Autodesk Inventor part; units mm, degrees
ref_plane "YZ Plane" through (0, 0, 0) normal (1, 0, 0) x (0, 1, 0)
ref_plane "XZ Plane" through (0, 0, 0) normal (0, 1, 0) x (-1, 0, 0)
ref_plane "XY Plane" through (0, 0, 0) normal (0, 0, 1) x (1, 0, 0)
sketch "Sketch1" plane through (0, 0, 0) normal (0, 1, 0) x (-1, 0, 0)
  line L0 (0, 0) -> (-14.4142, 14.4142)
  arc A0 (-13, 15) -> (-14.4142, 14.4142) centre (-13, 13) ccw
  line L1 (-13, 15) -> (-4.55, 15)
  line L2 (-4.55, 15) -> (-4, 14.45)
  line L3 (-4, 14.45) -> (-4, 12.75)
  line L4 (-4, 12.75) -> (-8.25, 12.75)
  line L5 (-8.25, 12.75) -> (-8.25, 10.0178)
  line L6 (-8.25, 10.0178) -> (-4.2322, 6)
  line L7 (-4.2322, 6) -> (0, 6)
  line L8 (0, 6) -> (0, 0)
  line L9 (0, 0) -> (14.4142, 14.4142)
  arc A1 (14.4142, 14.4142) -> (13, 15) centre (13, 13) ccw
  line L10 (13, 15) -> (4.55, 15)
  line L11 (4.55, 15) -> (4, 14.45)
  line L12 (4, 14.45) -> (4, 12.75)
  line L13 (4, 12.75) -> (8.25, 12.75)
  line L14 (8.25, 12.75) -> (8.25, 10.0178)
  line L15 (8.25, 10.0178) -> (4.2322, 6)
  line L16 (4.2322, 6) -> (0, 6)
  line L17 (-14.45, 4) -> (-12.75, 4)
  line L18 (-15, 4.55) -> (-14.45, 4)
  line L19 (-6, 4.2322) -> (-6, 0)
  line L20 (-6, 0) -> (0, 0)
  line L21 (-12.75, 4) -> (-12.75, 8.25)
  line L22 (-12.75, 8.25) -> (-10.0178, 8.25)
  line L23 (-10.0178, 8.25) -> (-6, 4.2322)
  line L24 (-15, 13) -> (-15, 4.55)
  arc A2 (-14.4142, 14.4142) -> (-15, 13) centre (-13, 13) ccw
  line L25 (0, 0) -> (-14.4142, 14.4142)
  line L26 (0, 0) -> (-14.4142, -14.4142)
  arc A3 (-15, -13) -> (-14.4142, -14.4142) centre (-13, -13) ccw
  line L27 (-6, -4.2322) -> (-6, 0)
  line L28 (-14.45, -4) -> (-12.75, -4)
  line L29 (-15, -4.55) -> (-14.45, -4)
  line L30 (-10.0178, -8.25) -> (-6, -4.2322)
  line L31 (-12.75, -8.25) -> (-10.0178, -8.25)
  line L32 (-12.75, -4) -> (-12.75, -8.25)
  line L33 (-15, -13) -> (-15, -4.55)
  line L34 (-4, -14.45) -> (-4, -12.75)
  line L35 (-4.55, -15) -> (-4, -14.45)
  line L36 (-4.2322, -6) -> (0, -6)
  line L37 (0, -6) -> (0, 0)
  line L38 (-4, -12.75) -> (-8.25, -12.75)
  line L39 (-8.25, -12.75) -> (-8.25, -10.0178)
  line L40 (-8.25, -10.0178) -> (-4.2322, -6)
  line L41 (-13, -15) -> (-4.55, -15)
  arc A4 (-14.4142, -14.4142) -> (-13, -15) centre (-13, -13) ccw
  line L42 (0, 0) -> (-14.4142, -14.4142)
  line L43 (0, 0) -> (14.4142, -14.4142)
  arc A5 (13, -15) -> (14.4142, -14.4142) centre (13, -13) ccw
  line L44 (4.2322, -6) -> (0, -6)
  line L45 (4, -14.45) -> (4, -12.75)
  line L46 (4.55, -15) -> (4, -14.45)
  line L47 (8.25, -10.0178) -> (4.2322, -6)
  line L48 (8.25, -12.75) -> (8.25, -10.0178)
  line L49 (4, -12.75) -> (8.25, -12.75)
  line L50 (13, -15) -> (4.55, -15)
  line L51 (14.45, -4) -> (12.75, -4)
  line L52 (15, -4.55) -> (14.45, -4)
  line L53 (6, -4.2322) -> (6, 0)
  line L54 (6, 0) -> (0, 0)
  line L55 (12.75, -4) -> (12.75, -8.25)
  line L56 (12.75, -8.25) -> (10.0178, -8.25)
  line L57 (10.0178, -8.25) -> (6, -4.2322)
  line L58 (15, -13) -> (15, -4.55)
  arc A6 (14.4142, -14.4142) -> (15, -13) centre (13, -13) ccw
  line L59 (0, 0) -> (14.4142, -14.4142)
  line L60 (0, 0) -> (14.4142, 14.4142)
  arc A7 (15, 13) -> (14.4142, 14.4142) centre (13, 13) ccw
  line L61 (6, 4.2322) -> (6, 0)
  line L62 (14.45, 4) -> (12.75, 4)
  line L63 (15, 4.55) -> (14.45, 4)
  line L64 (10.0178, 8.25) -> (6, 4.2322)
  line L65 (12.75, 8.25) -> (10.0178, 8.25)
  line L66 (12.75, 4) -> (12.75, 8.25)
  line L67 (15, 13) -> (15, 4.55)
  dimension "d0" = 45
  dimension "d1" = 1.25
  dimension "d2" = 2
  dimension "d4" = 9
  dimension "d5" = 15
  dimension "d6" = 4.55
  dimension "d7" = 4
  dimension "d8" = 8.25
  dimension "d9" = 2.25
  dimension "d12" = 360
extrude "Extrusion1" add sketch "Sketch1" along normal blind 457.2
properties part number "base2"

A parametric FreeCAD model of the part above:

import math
import FreeCAD as App
import Part
import Sketcher

V = App.Vector

doc = App.newDocument("Part")
params = doc.addObject("Spreadsheet::Sheet", "Params")
for row, (alias, value) in enumerate([
    ("sketch1_radius", "2 mm"),
    ("sketch1_width", "1.7 mm"),
    ("pad1_length", "457.2 mm"),
], start=1):
    params.set(f"A{row}", alias)
    params.set(f"B{row}", "=" + value)
    params.setAlias(f"B{row}", alias)

body = doc.addObject("PartDesign::Body", "Body")

# Sketch on XZ plane
sketch1 = body.newObject("Sketcher::SketchObject", "Sketch")
sketch1.AttachmentSupport = (doc.getObject("XZ_Plane"), [""])
sketch1.MapMode = "FlatFace"
sketch1.addGeometry([
    Part.LineSegment(V(6, 4.2, 0), V(6, -4.2, 0)),  # 0
    Part.LineSegment(V(6, -4.2, 0), V(10, -8.2, 0)),  # 1
    Part.LineSegment(V(10, -8.2, 0), V(12.8, -8.2, 0)),  # 2
    Part.LineSegment(V(12.8, -8.2, 0), V(12.8, -4, 0)),  # 3
    Part.LineSegment(V(12.8, -4, 0), V(14.4, -4, 0)),  # 4
    Part.LineSegment(V(14.4, -4, 0), V(15, -4.5, 0)),  # 5
    Part.LineSegment(V(15, -4.5, 0), V(15, -13, 0)),  # 6
    Part.ArcOfCircle(Part.Circle(V(13, -13, 0), V(0, 0, 1), 2), math.radians(-45), math.radians(0)),  # 7
    Part.ArcOfCircle(Part.Circle(V(13, -13, 0), V(0, 0, 1), 2), math.radians(-90), math.radians(-45)),  # 8
    Part.LineSegment(V(13, -15, 0), V(4.5, -15, 0)),  # 9
    Part.LineSegment(V(4.5, -15, 0), V(4, -14.4, 0)),  # 10
    Part.LineSegment(V(4, -14.4, 0), V(4, -12.8, 0)),  # 11
    Part.LineSegment(V(4, -12.8, 0), V(8.2, -12.8, 0)),  # 12
    Part.LineSegment(V(8.2, -12.8, 0), V(8.2, -10, 0)),  # 13
    Part.LineSegment(V(8.2, -10, 0), V(4.2, -6, 0)),  # 14
    Part.LineSegment(V(4.2, -6, 0), V(-4.2, -6, 0)),  # 15
    Part.LineSegment(V(-4.2, -6, 0), V(-8.2, -10, 0)),  # 16
    Part.LineSegment(V(-8.2, -10, 0), V(-8.2, -12.8, 0)),  # 17
    Part.LineSegment(V(-8.2, -12.8, 0), V(-4, -12.8, 0)),  # 18
    Part.LineSegment(V(-4, -12.8, 0), V(-4, -14.4, 0)),  # 19
    Part.LineSegment(V(-4, -14.4, 0), V(-4.5, -15, 0)),  # 20
    Part.LineSegment(V(-4.5, -15, 0), V(-13, -15, 0)),  # 21
    Part.ArcOfCircle(Part.Circle(V(-13, -13, 0), V(0, 0, 1), 2), math.radians(-135), math.radians(-90)),  # 22
    Part.ArcOfCircle(Part.Circle(V(-13, -13, 0), V(0, 0, 1), 2), math.radians(180), math.radians(225)),  # 23
    Part.LineSegment(V(-15, -13, 0), V(-15, -4.5, 0)),  # 24
    Part.LineSegment(V(-15, -4.5, 0), V(-14.4, -4, 0)),  # 25
    Part.LineSegment(V(-14.4, -4, 0), V(-12.8, -4, 0)),  # 26
    Part.LineSegment(V(-12.8, -4, 0), V(-12.8, -8.2, 0)),  # 27
    Part.LineSegment(V(-12.8, -8.2, 0), V(-10, -8.2, 0)),  # 28
    Part.LineSegment(V(-10, -8.2, 0), V(-6, -4.2, 0)),  # 29
    Part.LineSegment(V(-6, -4.2, 0), V(-6, 4.2, 0)),  # 30
    Part.LineSegment(V(-6, 4.2, 0), V(-10, 8.2, 0)),  # 31
    Part.LineSegment(V(-10, 8.2, 0), V(-12.8, 8.2, 0)),  # 32
    Part.LineSegment(V(-12.8, 8.2, 0), V(-12.8, 4, 0)),  # 33
    Part.LineSegment(V(-12.8, 4, 0), V(-14.4, 4, 0)),  # 34
    Part.LineSegment(V(-14.4, 4, 0), V(-15, 4.5, 0)),  # 35
    Part.LineSegment(V(-15, 4.5, 0), V(-15, 13, 0)),  # 36
    Part.ArcOfCircle(Part.Circle(V(-13, 13, 0), V(0, 0, 1), 2), math.radians(135), math.radians(180)),  # 37
    Part.ArcOfCircle(Part.Circle(V(-13, 13, 0), V(0, 0, 1), 2), math.radians(90), math.radians(135)),  # 38
    Part.LineSegment(V(-13, 15, 0), V(-4.5, 15, 0)),  # 39
    Part.LineSegment(V(-4.5, 15, 0), V(-4, 14.4, 0)),  # 40
    Part.LineSegment(V(-4, 14.4, 0), V(-4, 12.8, 0)),  # 41
    Part.LineSegment(V(-4, 12.8, 0), V(-8.2, 12.8, 0)),  # 42
    Part.LineSegment(V(-8.2, 12.8, 0), V(-8.2, 10, 0)),  # 43
    Part.LineSegment(V(-8.2, 10, 0), V(-4.2, 6, 0)),  # 44
    Part.LineSegment(V(-4.2, 6, 0), V(4.2, 6, 0)),  # 45
    Part.LineSegment(V(4.2, 6, 0), V(8.2, 10, 0)),  # 46
    Part.LineSegment(V(8.2, 10, 0), V(8.2, 12.8, 0)),  # 47
    Part.LineSegment(V(8.2, 12.8, 0), V(4, 12.8, 0)),  # 48
    Part.LineSegment(V(4, 12.8, 0), V(4, 14.4, 0)),  # 49
    Part.LineSegment(V(4, 14.4, 0), V(4.5, 15, 0)),  # 50
    Part.LineSegment(V(4.5, 15, 0), V(13, 15, 0)),  # 51
    Part.ArcOfCircle(Part.Circle(V(13, 13, 0), V(0, 0, 1), 2), math.radians(45), math.radians(90)),  # 52
    Part.ArcOfCircle(Part.Circle(V(13, 13, 0), V(0, 0, 1), 2), math.radians(0), math.radians(45)),  # 53
    Part.LineSegment(V(15, 13, 0), V(15, 4.5, 0)),  # 54
    Part.LineSegment(V(15, 4.5, 0), V(14.4, 4, 0)),  # 55
    Part.LineSegment(V(14.4, 4, 0), V(12.8, 4, 0)),  # 56
    Part.LineSegment(V(12.8, 4, 0), V(12.8, 8.2, 0)),  # 57
    Part.LineSegment(V(12.8, 8.2, 0), V(10, 8.2, 0)),  # 58
    Part.LineSegment(V(10, 8.2, 0), V(6, 4.2, 0)),  # 59
], False)
sketch1.addConstraint([
    Sketcher.Constraint("Coincident", 0, 2, 1, 1),
    Sketcher.Constraint("Coincident", 1, 2, 2, 1),
    Sketcher.Constraint("Coincident", 2, 2, 3, 1),
    Sketcher.Constraint("Coincident", 3, 2, 4, 1),
    Sketcher.Constraint("Coincident", 4, 2, 5, 1),
    Sketcher.Constraint("Coincident", 5, 2, 6, 1),
    Sketcher.Constraint("Tangent", 6, 2, 7, 2),
    Sketcher.Constraint("Tangent", 7, 1, 8, 2),
    Sketcher.Constraint("Tangent", 8, 1, 9, 1),
    Sketcher.Constraint("Coincident", 9, 2, 10, 1),
    Sketcher.Constraint("Coincident", 10, 2, 11, 1),
    Sketcher.Constraint("Coincident", 11, 2, 12, 1),
    Sketcher.Constraint("Coincident", 12, 2, 13, 1),
    Sketcher.Constraint("Coincident", 13, 2, 14, 1),
    Sketcher.Constraint("Coincident", 14, 2, 15, 1),
    Sketcher.Constraint("Coincident", 15, 2, 16, 1),
    Sketcher.Constraint("Coincident", 16, 2, 17, 1),
    Sketcher.Constraint("Coincident", 17, 2, 18, 1),
    Sketcher.Constraint("Coincident", 18, 2, 19, 1),
    Sketcher.Constraint("Coincident", 19, 2, 20, 1),
    Sketcher.Constraint("Coincident", 20, 2, 21, 1),
    Sketcher.Constraint("Tangent", 21, 2, 22, 2),
    Sketcher.Constraint("Tangent", 22, 1, 23, 2),
    Sketcher.Constraint("Tangent", 23, 1, 24, 1),
    Sketcher.Constraint("Coincident", 24, 2, 25, 1),
    Sketcher.Constraint("Coincident", 25, 2, 26, 1),
    Sketcher.Constraint("Coincident", 26, 2, 27, 1),
    Sketcher.Constraint("Coincident", 27, 2, 28, 1),
    Sketcher.Constraint("Coincident", 28, 2, 29, 1),
    Sketcher.Constraint("Coincident", 29, 2, 30, 1),
    Sketcher.Constraint("Coincident", 30, 2, 31, 1),
    Sketcher.Constraint("Coincident", 31, 2, 32, 1),
    Sketcher.Constraint("Coincident", 32, 2, 33, 1),
    Sketcher.Constraint("Coincident", 33, 2, 34, 1),
    Sketcher.Constraint("Coincident", 34, 2, 35, 1),
    Sketcher.Constraint("Coincident", 35, 2, 36, 1),
    Sketcher.Constraint("Tangent", 36, 2, 37, 2),
    Sketcher.Constraint("Tangent", 37, 1, 38, 2),
    Sketcher.Constraint("Tangent", 38, 1, 39, 1),
    Sketcher.Constraint("Coincident", 39, 2, 40, 1),
    Sketcher.Constraint("Coincident", 40, 2, 41, 1),
    Sketcher.Constraint("Coincident", 41, 2, 42, 1),
    Sketcher.Constraint("Coincident", 42, 2, 43, 1),
    Sketcher.Constraint("Coincident", 43, 2, 44, 1),
    Sketcher.Constraint("Coincident", 44, 2, 45, 1),
    Sketcher.Constraint("Coincident", 45, 2, 46, 1),
    Sketcher.Constraint("Coincident", 46, 2, 47, 1),
    Sketcher.Constraint("Coincident", 47, 2, 48, 1),
    Sketcher.Constraint("Coincident", 48, 2, 49, 1),
    Sketcher.Constraint("Coincident", 49, 2, 50, 1),
    Sketcher.Constraint("Coincident", 50, 2, 51, 1),
    Sketcher.Constraint("Tangent", 51, 2, 52, 2),
    Sketcher.Constraint("Tangent", 52, 1, 53, 2),
    Sketcher.Constraint("Tangent", 53, 1, 54, 1),
    Sketcher.Constraint("Coincident", 54, 2, 55, 1),
    Sketcher.Constraint("Coincident", 55, 2, 56, 1),
    Sketcher.Constraint("Coincident", 56, 2, 57, 1),
    Sketcher.Constraint("Coincident", 57, 2, 58, 1),
    Sketcher.Constraint("Coincident", 58, 2, 59, 1),
    Sketcher.Constraint("Coincident", 59, 2, 0, 1),
    Sketcher.Constraint("Vertical", 0),
    Sketcher.Constraint("Horizontal", 2),
    Sketcher.Constraint("Vertical", 3),
    Sketcher.Constraint("Horizontal", 4),
    Sketcher.Constraint("Vertical", 6),
    Sketcher.Constraint("Horizontal", 9),
    Sketcher.Constraint("Vertical", 11),
    Sketcher.Constraint("Horizontal", 12),
    Sketcher.Constraint("Vertical", 13),
    Sketcher.Constraint("Horizontal", 15),
    Sketcher.Constraint("Vertical", 17),
    Sketcher.Constraint("Horizontal", 18),
    Sketcher.Constraint("Vertical", 19),
    Sketcher.Constraint("Horizontal", 21),
    Sketcher.Constraint("Vertical", 24),
    Sketcher.Constraint("Horizontal", 26),
    Sketcher.Constraint("Vertical", 27),
    Sketcher.Constraint("Horizontal", 28),
    Sketcher.Constraint("Vertical", 30),
    Sketcher.Constraint("Horizontal", 32),
    Sketcher.Constraint("Vertical", 33),
    Sketcher.Constraint("Horizontal", 34),
    Sketcher.Constraint("Vertical", 36),
    Sketcher.Constraint("Horizontal", 39),
    Sketcher.Constraint("Vertical", 41),
    Sketcher.Constraint("Horizontal", 42),
    Sketcher.Constraint("Vertical", 43),
    Sketcher.Constraint("Horizontal", 45),
    Sketcher.Constraint("Vertical", 47),
    Sketcher.Constraint("Horizontal", 48),
    Sketcher.Constraint("Vertical", 49),
    Sketcher.Constraint("Horizontal", 51),
    Sketcher.Constraint("Vertical", 54),
    Sketcher.Constraint("Horizontal", 56),
    Sketcher.Constraint("Vertical", 57),
    Sketcher.Constraint("Horizontal", 58),
    Sketcher.Constraint("Equal", 7, 8),
    Sketcher.Constraint("Equal", 8, 22),
    Sketcher.Constraint("Equal", 22, 23),
    Sketcher.Constraint("Equal", 23, 37),
    Sketcher.Constraint("Equal", 37, 38),
    Sketcher.Constraint("Equal", 38, 52),
    Sketcher.Constraint("Equal", 52, 53),
    Sketcher.Constraint("Symmetric", 7, 3, 37, 3, -1, 1),
    Sketcher.Constraint("Symmetric", 22, 3, 52, 3, -1, 1),
    Sketcher.Constraint("Symmetric", 0, 2, 30, 2, -1, 1),
    Sketcher.Constraint("Symmetric", 1, 2, 31, 2, -1, 1),
    Sketcher.Constraint("Symmetric", 3, 2, 33, 2, -1, 1),
    Sketcher.Constraint("Symmetric", 10, 2, 40, 2, -1, 1),
    Sketcher.Constraint("Symmetric", 12, 2, 42, 2, -1, 1),
    Sketcher.Constraint("Symmetric", 14, 2, 44, 2, -1, 1),
    Sketcher.Constraint("Symmetric", 16, 2, 46, 2, -1, 1),
    Sketcher.Constraint("Symmetric", 18, 2, 48, 2, -1, 1),
    Sketcher.Constraint("Symmetric", 25, 2, 55, 2, -1, 1),
    Sketcher.Constraint("Symmetric", 27, 2, 57, 2, -1, 1),
    Sketcher.Constraint("Symmetric", 7, 3, 22, 3, -2),
    Sketcher.Constraint("Symmetric", 13, 2, 16, 2, -2),
    Sketcher.Constraint("Symmetric", 11, 2, 18, 2, -2),
    Sketcher.Constraint("Symmetric", 4, 2, 25, 2, -2),
    Sketcher.Constraint("Symmetric", 2, 2, 27, 2, -2),
    Sketcher.Constraint("Parallel", 1, 5),
    Sketcher.Constraint("Parallel", 5, 10),
    Sketcher.Constraint("Parallel", 10, 14),
    Sketcher.Constraint("Perpendicular", 14, 16),
    Sketcher.Constraint("Parallel", 16, 20),
    Sketcher.Constraint("Parallel", 20, 25),
    Sketcher.Constraint("Parallel", 25, 29),
    Sketcher.Constraint("Parallel", 31, 35),
    Sketcher.Constraint("Parallel", 35, 40),
    Sketcher.Constraint("Parallel", 40, 44),
    Sketcher.Constraint("Perpendicular", 44, 46),
    Sketcher.Constraint("Parallel", 46, 50),
    Sketcher.Constraint("Parallel", 50, 55),
    Sketcher.Constraint("Parallel", 55, 59),
    Sketcher.Constraint("Horizontal", 10, 2, 19, 2),
    Sketcher.Constraint("Horizontal", 7, 1, 22, 1),
    Sketcher.Constraint("Horizontal", 5, 2, 24, 2),
    Sketcher.Constraint("Horizontal", 0, 2, 29, 2),
    Sketcher.Constraint("Horizontal", 40, 2, 49, 2),
    Sketcher.Constraint("Horizontal", 37, 1, 52, 1),
    Sketcher.Constraint("Horizontal", 35, 2, 54, 2),
    Sketcher.Constraint("Horizontal", 30, 2, 59, 2),
    Sketcher.Constraint("Vertical", 22, 1, 37, 1),
    Sketcher.Constraint("Equal", 45, 0),
    Sketcher.Constraint("Equal", 48, 3),
    Sketcher.Constraint("Equal", 51, 6),
    Sketcher.Constraint("Equal", 56, 11),
    Sketcher.Constraint("Equal", 58, 13),
    Sketcher.Constraint("Equal", 5, 10),
    Sketcher.Constraint("Equal", 1, 14),
    Sketcher.Constraint("Radius", 7, 2.0),
    Sketcher.Constraint("DistanceY", 3, 2, -1, 1, 4.0),
    Sketcher.Constraint("DistanceX", -1, 1, 5, 2, 15.0),
    Sketcher.Constraint("DistanceY", 1, 2, -1, 1, 8.25),
    Sketcher.Constraint("DistanceY", 5, 2, -1, 1, 4.55),
    Sketcher.Constraint("DistanceX", 4, 1, 4, 2, 1.7),
    Sketcher.Constraint("DistanceX", -1, 1, 0, 2, 6.0),
    Sketcher.Constraint("Distance", 1, 5.682),
    Sketcher.Constraint("DistanceX", -1, 1, 7, 1, 14.4142),
])
sketch1.setExpression("Constraints[150]", "Params.sketch1_radius")
sketch1.setExpression("Constraints[155]", "Params.sketch1_width")
pad1 = body.newObject("PartDesign::Pad", "Pad")
pad1.Profile = sketch1
pad1.setExpression("Length", "Params.pad1_length")
pad1.Reversed = True

doc.recompute()
